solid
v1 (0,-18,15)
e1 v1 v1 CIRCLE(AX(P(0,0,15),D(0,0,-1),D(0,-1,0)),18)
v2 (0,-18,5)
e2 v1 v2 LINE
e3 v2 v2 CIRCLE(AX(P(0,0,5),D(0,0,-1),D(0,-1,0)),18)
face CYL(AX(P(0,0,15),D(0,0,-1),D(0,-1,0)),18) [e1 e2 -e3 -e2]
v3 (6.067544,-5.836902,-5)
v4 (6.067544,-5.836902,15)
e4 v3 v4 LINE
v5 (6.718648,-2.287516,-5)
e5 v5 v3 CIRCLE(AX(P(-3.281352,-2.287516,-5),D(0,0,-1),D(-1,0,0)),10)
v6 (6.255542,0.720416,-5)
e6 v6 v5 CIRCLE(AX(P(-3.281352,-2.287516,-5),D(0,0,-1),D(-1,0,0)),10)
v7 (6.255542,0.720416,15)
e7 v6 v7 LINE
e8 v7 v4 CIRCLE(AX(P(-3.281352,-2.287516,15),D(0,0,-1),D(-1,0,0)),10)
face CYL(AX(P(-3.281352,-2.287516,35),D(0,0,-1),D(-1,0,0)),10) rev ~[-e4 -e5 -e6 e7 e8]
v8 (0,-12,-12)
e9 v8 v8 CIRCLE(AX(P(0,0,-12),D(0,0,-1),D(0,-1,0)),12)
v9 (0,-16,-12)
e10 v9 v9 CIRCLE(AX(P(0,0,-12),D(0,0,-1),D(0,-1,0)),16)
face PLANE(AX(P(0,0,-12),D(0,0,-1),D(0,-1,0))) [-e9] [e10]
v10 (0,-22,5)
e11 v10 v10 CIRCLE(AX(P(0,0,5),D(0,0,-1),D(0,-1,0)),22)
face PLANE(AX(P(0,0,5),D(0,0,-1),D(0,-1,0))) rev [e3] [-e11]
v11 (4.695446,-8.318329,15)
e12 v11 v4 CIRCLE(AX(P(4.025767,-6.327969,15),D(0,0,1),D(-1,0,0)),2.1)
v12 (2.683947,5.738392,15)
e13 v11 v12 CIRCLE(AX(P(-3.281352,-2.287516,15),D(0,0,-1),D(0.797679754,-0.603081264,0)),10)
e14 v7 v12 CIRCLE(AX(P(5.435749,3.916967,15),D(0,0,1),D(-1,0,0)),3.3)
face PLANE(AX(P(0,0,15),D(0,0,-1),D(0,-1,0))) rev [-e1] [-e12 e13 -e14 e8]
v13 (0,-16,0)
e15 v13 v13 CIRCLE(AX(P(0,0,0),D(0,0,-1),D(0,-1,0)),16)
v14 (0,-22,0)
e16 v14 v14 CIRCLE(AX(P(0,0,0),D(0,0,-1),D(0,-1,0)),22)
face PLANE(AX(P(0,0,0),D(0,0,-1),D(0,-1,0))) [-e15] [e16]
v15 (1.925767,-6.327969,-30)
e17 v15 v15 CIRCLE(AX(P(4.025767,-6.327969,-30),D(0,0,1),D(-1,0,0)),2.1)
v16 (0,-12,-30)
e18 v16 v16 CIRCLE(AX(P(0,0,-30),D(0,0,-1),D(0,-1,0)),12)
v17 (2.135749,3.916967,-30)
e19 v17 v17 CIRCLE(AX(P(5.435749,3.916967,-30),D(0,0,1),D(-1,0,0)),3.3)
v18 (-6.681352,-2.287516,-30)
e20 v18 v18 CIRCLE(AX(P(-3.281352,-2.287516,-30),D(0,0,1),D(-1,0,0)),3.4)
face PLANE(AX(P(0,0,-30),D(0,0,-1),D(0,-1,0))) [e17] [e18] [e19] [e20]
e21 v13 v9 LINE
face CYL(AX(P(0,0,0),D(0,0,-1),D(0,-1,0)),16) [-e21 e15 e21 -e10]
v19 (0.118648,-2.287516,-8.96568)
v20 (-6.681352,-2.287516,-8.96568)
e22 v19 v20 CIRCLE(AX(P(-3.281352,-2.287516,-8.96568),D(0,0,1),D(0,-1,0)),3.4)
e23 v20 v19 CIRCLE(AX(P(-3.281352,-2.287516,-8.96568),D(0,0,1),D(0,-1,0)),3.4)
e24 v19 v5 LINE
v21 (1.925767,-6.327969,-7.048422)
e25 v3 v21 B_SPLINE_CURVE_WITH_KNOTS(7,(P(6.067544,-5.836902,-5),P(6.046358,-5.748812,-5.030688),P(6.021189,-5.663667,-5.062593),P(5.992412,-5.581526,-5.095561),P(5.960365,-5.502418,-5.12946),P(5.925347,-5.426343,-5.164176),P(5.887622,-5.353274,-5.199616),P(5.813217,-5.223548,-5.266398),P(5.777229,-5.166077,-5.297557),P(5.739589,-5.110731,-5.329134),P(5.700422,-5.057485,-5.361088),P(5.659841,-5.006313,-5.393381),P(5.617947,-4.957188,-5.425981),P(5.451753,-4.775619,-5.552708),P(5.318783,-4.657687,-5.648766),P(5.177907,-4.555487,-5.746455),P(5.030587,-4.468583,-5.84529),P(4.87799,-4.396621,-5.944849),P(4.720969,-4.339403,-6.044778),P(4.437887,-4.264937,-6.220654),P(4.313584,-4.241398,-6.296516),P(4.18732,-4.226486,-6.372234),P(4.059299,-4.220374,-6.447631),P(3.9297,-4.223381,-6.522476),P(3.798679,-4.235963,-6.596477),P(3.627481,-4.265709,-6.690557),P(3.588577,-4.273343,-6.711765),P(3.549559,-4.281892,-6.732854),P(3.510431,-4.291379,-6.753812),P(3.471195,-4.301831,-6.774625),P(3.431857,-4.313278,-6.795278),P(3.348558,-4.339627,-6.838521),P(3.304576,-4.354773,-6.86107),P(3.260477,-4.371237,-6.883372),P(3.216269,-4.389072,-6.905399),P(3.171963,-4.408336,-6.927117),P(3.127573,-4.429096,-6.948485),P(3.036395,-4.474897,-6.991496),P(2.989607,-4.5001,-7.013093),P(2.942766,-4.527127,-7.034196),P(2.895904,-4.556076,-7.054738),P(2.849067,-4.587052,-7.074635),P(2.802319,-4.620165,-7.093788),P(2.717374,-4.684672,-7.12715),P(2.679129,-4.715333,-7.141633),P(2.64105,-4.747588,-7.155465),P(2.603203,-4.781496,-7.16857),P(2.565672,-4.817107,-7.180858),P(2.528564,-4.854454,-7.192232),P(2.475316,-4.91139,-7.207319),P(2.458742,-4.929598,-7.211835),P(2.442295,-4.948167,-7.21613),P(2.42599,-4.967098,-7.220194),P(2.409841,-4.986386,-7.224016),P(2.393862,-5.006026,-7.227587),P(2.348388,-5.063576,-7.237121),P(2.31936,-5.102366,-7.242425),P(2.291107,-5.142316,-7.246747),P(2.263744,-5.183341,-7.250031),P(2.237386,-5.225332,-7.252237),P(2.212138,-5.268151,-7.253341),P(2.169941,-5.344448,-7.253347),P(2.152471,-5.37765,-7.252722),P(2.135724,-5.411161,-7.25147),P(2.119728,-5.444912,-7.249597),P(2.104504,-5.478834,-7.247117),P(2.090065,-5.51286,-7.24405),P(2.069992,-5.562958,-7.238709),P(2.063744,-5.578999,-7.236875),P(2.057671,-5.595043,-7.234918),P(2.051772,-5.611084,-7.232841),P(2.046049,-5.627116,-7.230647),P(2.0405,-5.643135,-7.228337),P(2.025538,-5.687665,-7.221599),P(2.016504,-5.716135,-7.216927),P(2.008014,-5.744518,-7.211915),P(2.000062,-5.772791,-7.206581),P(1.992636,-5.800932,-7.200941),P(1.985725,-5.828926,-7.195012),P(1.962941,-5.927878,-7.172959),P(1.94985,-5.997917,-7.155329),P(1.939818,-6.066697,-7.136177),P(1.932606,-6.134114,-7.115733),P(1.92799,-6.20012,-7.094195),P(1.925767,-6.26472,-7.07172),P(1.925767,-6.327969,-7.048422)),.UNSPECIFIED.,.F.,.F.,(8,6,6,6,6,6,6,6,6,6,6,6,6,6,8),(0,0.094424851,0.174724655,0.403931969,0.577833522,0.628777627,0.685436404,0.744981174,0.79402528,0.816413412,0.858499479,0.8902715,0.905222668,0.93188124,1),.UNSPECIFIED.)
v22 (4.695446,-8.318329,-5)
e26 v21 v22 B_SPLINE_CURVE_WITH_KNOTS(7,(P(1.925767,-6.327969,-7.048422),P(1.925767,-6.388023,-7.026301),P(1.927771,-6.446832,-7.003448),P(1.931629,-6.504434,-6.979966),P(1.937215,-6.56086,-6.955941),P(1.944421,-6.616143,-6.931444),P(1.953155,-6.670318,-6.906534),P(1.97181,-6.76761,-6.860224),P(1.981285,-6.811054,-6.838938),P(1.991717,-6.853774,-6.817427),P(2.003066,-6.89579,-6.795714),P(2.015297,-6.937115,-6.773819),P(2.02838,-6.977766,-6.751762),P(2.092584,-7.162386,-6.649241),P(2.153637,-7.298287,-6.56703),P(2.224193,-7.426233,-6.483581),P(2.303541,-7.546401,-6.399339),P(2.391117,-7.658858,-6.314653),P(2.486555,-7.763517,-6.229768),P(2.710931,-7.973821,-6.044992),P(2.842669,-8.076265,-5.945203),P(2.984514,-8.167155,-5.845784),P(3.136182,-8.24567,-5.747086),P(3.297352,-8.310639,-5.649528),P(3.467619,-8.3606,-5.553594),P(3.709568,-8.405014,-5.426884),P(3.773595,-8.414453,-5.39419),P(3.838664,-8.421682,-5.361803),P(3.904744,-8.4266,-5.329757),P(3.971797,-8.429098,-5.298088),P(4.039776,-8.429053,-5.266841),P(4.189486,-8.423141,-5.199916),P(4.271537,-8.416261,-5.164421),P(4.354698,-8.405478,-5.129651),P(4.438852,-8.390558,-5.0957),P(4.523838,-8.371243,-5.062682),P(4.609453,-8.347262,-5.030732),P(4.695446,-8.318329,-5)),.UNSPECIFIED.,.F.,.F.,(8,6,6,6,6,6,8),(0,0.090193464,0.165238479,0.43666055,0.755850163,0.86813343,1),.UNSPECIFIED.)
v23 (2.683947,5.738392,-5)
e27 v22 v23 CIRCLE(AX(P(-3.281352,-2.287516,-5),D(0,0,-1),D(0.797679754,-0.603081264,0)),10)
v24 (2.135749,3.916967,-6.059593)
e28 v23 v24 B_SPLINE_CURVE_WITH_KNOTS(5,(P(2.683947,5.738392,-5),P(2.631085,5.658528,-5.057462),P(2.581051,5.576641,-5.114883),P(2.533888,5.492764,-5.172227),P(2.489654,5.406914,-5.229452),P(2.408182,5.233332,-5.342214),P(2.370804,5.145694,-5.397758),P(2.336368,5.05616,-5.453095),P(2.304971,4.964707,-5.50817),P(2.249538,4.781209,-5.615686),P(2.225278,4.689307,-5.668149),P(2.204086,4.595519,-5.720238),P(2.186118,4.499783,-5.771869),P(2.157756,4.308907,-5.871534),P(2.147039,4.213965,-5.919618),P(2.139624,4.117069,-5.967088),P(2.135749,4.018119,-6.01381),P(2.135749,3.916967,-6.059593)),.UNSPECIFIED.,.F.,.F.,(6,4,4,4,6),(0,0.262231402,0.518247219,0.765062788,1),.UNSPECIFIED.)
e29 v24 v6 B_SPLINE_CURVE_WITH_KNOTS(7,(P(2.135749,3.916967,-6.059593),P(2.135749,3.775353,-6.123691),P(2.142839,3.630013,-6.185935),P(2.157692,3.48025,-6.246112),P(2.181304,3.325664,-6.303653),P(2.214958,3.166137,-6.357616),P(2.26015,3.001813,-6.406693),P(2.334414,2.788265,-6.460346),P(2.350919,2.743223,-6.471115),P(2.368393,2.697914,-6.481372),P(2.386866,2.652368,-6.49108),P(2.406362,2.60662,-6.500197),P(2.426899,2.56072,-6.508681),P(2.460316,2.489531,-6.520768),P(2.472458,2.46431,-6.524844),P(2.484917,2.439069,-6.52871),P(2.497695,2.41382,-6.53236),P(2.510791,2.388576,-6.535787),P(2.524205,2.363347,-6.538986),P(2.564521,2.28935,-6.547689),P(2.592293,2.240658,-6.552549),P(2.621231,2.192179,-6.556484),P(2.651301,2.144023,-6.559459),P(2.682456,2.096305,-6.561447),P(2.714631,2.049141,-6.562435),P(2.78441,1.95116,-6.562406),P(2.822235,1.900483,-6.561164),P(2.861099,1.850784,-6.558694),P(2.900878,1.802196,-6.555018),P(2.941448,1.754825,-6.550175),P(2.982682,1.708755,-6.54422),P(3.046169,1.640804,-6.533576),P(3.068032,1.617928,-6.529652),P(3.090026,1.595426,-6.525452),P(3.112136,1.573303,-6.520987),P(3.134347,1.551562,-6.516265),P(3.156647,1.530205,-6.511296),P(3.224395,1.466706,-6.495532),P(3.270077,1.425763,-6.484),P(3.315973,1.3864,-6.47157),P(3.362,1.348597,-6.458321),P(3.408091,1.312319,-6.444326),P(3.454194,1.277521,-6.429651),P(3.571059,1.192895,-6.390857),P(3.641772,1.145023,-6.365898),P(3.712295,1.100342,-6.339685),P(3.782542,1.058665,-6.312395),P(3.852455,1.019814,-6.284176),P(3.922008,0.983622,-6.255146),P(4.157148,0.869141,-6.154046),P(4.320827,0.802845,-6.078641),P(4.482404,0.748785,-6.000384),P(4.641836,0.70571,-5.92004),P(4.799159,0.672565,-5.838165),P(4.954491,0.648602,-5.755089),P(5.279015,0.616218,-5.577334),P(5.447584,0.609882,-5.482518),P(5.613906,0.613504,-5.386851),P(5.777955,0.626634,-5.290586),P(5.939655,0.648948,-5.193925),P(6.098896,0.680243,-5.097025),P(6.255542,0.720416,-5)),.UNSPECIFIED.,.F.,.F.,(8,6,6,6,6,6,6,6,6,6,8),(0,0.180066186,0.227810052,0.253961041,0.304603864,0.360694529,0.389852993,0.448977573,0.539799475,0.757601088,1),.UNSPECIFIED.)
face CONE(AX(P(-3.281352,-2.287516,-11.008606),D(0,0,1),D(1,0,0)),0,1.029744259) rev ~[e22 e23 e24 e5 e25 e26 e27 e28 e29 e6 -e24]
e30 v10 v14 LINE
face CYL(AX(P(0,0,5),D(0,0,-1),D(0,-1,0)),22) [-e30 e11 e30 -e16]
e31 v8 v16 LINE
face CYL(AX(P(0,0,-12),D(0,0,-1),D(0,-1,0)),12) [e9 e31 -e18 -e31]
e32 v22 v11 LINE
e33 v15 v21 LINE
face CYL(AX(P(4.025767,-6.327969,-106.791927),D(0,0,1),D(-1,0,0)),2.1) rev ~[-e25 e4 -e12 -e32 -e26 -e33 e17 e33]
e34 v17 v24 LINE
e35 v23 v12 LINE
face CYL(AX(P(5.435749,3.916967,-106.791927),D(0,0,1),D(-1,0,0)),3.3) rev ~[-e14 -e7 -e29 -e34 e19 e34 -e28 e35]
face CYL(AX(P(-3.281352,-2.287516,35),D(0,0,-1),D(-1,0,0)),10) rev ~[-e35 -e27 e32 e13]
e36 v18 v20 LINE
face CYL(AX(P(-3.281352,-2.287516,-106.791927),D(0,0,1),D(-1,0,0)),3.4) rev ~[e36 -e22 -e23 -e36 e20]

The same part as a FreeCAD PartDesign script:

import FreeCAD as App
import Part
import Sketcher
from FreeCAD import Vector

doc = App.newDocument("Part")
body = doc.addObject("PartDesign::Body", "Body")

# Sketch on YZ plane
sketch1 = body.newObject("Sketcher::SketchObject", "Sketch")
sketch1.AttachmentSupport = (doc.getObject("YZ_Plane"), [""])
sketch1.MapMode = "FlatFace"
sketch1.addGeometry(Part.LineSegment(Vector(-16, 0, 0), Vector(-16, -12, 0)), False)
sketch1.addGeometry(Part.LineSegment(Vector(-16, -12, 0), Vector(-12, -12, 0)), False)
sketch1.addGeometry(Part.LineSegment(Vector(-12, -12, 0), Vector(-12, -30, 0)), False)
sketch1.addGeometry(Part.LineSegment(Vector(-12, -30, 0), Vector(0, -30, 0)), False)
sketch1.addGeometry(Part.LineSegment(Vector(0, -30, 0), Vector(0, 15, 0)), False)
sketch1.addGeometry(Part.LineSegment(Vector(0, 15, 0), Vector(-18, 15, 0)), False)
sketch1.addGeometry(Part.LineSegment(Vector(-18, 15, 0), Vector(-18, 5, 0)), False)
sketch1.addGeometry(Part.LineSegment(Vector(-18, 5, 0), Vector(-22, 5, 0)), False)
sketch1.addGeometry(Part.LineSegment(Vector(-22, 5, 0), Vector(-22, 0, 0)), False)
sketch1.addGeometry(Part.LineSegment(Vector(-22, 0, 0), Vector(-16, 0, 0)), False)
sketch1.addConstraint(Sketcher.Constraint("Coincident", 0, 2, 1, 1))
sketch1.addConstraint(Sketcher.Constraint("Coincident", 1, 2, 2, 1))
sketch1.addConstraint(Sketcher.Constraint("Coincident", 2, 2, 3, 1))
sketch1.addConstraint(Sketcher.Constraint("Coincident", 3, 2, 4, 1))
sketch1.addConstraint(Sketcher.Constraint("Coincident", 4, 2, 5, 1))
sketch1.addConstraint(Sketcher.Constraint("Coincident", 5, 2, 6, 1))
sketch1.addConstraint(Sketcher.Constraint("Coincident", 6, 2, 7, 1))
sketch1.addConstraint(Sketcher.Constraint("Coincident", 7, 2, 8, 1))
sketch1.addConstraint(Sketcher.Constraint("Coincident", 8, 2, 9, 1))
sketch1.addConstraint(Sketcher.Constraint("Coincident", 9, 2, 0, 1))
sketch1.addConstraint(Sketcher.Constraint("Vertical", 0))
sketch1.addConstraint(Sketcher.Constraint("Horizontal", 1))
sketch1.addConstraint(Sketcher.Constraint("Vertical", 2))
sketch1.addConstraint(Sketcher.Constraint("Horizontal", 3))
sketch1.addConstraint(Sketcher.Constraint("Vertical", 4))
sketch1.addConstraint(Sketcher.Constraint("Horizontal", 5))
sketch1.addConstraint(Sketcher.Constraint("Vertical", 6))
sketch1.addConstraint(Sketcher.Constraint("Horizontal", 7))
sketch1.addConstraint(Sketcher.Constraint("Vertical", 8))
sketch1.addConstraint(Sketcher.Constraint("Horizontal", 9))
sketch1.addConstraint(Sketcher.Constraint("PointOnObject", 3, 2, -2))
sketch1.addConstraint(Sketcher.Constraint("PointOnObject", 8, 2, -1))
sketch1.addConstraint(Sketcher.Constraint("Equal", 1, 7))
sketch1.addConstraint(Sketcher.Constraint("Equal", 3, 0))
sketch1.addConstraint(Sketcher.Constraint("Equal", 5, 2))
sketch1.addConstraint(Sketcher.Constraint("DistanceX", 1, 1, 1, 2, 4.0))
sketch1.addConstraint(Sketcher.Constraint("DistanceX", 3, 1, 3, 2, 12.0))
sketch1.addConstraint(Sketcher.Constraint("DistanceX", 5, 2, 5, 1, 18.0))
sketch1.addConstraint(Sketcher.Constraint("DistanceY", 4, 1, 4, 2, 45.0))
sketch1.addConstraint(Sketcher.Constraint("DistanceY", 6, 2, 6, 1, 10.0))
revolution = body.newObject("PartDesign::Revolution", "Revolution")
revolution.Profile = sketch1
revolution.ReferenceAxis = (sketch1, ["V_Axis"])
revolution.Angle = 360

# Sketch on XY plane
sketch2 = body.newObject("Sketcher::SketchObject", "Sketch001")
sketch2.AttachmentSupport = (doc.getObject("XY_Plane"), [""])
sketch2.MapMode = "FlatFace"
sketch2.AttachmentOffset = App.Placement(Vector(0, 0, -30), App.Rotation())
sketch2.addGeometry(Part.Circle(Vector(4, -6.3, 0), Vector(0, 0, 1), 2.1), False)
sketch2.addConstraint(Sketcher.Constraint("Diameter", 0, 4.2))
sketch2.addConstraint(Sketcher.Constraint("DistanceY", 0, 3, -1, 1, 6.327969))
sketch2.addConstraint(Sketcher.Constraint("DistanceX", -1, 1, 0, 3, 4.025767))
doc.recompute()
hole = body.newObject("PartDesign::Hole", "Hole")
hole.Profile = sketch2
hole.ThreadType = "None"
hole.Diameter = 4.2
hole.DepthType = "ThroughAll"
hole.Reversed = True

# Sketch on XY plane
sketch3 = body.newObject("Sketcher::SketchObject", "Sketch002")
sketch3.AttachmentSupport = (doc.getObject("XY_Plane"), [""])
sketch3.MapMode = "FlatFace"
sketch3.AttachmentOffset = App.Placement(Vector(0, 0, -30), App.Rotation())
sketch3.addGeometry(Part.Circle(Vector(-3.3, -2.3, 0), Vector(0, 0, 1), 3.4), False)
sketch3.addConstraint(Sketcher.Constraint("Diameter", 0, 6.8))
sketch3.addConstraint(Sketcher.Constraint("DistanceX", 0, 3, -1, 1, 3.281352))
sketch3.addConstraint(Sketcher.Constraint("DistanceY", 0, 3, -1, 1, 2.287516))
doc.recompute()
hole2 = body.newObject("PartDesign::Hole", "Hole001")
hole2.Profile = sketch3
hole2.ThreadType = "None"
hole2.Diameter = 6.8
hole2.DepthType = "ThroughAll"
hole2.Reversed = True

# Sketch on XY plane
sketch4 = body.newObject("Sketcher::SketchObject", "Sketch003")
sketch4.AttachmentSupport = (doc.getObject("XY_Plane"), [""])
sketch4.MapMode = "FlatFace"
sketch4.AttachmentOffset = App.Placement(Vector(0, 0, -30), App.Rotation())
sketch4.addGeometry(Part.Circle(Vector(5.4, 3.9, 0), Vector(0, 0, 1), 3.3), False)
sketch4.addConstraint(Sketcher.Constraint("Diameter", 0, 6.6))
sketch4.addConstraint(Sketcher.Constraint("DistanceX", -1, 1, 0, 3, 5.435749))
sketch4.addConstraint(Sketcher.Constraint("DistanceY", -1, 1, 0, 3, 3.916967))
doc.recompute()
hole3 = body.newObject("PartDesign::Hole", "Hole002")
hole3.Profile = sketch4
hole3.ThreadType = "None"
hole3.Diameter = 6.6
hole3.DepthType = "ThroughAll"
hole3.Reversed = True

# Sketch on XY plane
sketch5 = body.newObject("Sketcher::SketchObject", "Sketch004")
sketch5.AttachmentSupport = (doc.getObject("XY_Plane"), [""])
sketch5.MapMode = "FlatFace"
sketch5.AttachmentOffset = App.Placement(Vector(0, 0, 15), App.Rotation())
sketch5.addGeometry(Part.Circle(Vector(-3, -2, 0), Vector(0, 0, 1), 10), False)
sketch5.addConstraint(Sketcher.Constraint("Diameter", 0, 20.0))
sketch5.addConstraint(Sketcher.Constraint("DistanceX", 0, 3, -1, 1, 3.281352))
sketch5.addConstraint(Sketcher.Constraint("DistanceY", 0, 3, -1, 1, 2.287516))
doc.recompute()
hole4 = body.newObject("PartDesign::Hole", "Hole003")
hole4.Profile = sketch5
hole4.ThreadType = "None"
hole4.Diameter = 20
hole4.DepthType = "Dimension"
hole4.Depth = 20
hole4.DrillPoint = "Angled"
hole4.DrillPointAngle = 118

doc.recompute()
